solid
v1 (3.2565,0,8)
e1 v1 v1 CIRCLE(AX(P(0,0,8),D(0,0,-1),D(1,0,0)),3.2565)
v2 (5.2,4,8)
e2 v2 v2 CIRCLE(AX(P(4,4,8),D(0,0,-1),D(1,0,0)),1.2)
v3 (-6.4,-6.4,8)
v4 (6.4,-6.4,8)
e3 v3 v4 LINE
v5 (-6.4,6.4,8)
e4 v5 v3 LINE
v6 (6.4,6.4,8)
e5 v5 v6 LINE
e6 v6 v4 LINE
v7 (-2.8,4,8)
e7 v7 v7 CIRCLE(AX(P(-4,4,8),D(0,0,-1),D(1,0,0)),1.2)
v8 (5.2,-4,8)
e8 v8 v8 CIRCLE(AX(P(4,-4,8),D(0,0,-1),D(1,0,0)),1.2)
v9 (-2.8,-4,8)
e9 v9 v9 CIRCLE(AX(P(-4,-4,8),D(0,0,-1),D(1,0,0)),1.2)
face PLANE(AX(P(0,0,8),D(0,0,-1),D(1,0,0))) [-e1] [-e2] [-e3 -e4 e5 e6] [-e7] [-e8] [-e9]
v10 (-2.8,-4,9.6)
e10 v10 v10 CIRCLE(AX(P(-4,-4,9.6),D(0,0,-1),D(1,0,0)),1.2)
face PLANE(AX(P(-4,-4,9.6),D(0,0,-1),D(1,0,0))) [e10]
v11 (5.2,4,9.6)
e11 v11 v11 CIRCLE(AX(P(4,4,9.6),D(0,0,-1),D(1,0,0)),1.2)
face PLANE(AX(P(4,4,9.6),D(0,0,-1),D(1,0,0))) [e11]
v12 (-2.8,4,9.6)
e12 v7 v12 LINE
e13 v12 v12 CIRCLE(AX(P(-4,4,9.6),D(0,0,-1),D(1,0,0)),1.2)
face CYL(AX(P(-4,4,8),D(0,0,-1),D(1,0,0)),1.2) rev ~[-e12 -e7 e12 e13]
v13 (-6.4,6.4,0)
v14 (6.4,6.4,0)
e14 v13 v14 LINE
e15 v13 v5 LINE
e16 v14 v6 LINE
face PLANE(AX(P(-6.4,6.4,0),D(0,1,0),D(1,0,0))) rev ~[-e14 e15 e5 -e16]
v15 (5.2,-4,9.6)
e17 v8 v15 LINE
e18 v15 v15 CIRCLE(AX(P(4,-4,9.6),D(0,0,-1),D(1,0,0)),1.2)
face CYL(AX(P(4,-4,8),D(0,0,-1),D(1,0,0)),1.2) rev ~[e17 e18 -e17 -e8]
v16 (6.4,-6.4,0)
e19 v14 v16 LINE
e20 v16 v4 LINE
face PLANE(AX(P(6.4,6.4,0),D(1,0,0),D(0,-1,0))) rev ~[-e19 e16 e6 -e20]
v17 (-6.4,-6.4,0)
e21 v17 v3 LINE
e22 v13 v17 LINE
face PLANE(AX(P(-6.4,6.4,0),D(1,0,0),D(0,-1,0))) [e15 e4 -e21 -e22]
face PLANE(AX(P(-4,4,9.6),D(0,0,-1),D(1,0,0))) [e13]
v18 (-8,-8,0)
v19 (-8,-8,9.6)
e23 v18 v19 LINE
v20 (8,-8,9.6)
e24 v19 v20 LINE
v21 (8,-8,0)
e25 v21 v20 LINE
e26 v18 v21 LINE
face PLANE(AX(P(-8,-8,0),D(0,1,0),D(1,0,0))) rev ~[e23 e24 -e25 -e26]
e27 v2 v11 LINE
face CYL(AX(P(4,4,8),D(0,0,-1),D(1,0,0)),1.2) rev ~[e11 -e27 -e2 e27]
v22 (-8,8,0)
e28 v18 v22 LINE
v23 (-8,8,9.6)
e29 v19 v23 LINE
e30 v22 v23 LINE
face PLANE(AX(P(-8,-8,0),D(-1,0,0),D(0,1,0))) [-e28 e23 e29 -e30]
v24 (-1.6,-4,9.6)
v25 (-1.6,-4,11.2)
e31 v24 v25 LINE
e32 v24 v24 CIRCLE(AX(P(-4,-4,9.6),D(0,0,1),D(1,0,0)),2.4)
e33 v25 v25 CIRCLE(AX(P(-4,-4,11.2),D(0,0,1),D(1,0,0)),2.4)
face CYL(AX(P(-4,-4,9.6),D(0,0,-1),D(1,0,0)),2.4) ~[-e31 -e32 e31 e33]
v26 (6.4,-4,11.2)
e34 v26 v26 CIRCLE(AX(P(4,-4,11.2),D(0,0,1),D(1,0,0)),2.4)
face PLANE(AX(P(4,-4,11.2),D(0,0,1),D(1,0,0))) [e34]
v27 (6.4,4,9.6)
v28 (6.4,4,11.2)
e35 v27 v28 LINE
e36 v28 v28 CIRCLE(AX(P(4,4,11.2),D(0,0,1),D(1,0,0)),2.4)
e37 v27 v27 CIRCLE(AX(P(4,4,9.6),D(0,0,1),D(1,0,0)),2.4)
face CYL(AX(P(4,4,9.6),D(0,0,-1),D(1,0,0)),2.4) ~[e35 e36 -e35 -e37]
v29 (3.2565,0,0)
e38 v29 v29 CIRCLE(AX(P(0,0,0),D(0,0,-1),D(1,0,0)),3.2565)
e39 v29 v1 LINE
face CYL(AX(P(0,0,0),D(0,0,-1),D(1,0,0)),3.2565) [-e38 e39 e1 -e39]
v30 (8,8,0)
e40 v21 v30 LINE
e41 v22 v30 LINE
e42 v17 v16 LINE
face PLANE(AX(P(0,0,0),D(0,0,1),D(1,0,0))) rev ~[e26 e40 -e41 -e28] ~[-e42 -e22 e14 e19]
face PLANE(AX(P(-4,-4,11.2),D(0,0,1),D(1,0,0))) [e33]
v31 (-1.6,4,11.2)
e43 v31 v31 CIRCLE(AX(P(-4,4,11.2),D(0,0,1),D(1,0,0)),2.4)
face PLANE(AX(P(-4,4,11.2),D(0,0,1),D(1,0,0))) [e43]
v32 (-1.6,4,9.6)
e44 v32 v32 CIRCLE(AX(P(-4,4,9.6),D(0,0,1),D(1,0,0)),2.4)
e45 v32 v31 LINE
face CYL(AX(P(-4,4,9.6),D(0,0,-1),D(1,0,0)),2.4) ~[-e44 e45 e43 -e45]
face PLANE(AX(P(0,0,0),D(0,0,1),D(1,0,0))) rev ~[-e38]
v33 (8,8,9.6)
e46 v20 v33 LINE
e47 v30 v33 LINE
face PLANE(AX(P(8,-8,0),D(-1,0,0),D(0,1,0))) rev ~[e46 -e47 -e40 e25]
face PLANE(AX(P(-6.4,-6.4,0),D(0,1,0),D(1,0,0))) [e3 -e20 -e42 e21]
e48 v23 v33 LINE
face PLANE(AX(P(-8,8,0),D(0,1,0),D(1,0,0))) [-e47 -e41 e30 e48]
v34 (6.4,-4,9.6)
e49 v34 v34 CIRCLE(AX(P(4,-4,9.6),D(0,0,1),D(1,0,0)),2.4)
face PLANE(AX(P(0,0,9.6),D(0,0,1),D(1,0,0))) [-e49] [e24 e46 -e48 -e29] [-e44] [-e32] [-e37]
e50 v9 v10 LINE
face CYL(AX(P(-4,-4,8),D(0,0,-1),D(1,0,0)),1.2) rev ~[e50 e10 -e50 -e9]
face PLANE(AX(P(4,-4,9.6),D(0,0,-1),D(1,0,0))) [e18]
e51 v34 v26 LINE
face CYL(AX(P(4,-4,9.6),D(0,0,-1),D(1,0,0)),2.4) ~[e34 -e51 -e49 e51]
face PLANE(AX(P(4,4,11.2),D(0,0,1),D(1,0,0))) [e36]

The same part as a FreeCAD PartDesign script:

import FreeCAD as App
import Part
import Sketcher

V = App.Vector
Q = App.Units.Quantity

doc = App.newDocument("Part")
body = doc.addObject("PartDesign::Body", "Body")

# Sketch on XY plane
sketch1 = doc.addObject("Sketcher::SketchObject", "Sketch")
body.addObject(sketch1)
sketch1.AttachmentSupport = (doc.XY_Plane, [""])
sketch1.MapMode = "FlatFace"
sketch1.addGeometry([
    Part.LineSegment(V(-8, 8, 0), V(-8, -8, 0)),
    Part.LineSegment(V(-8, -8, 0), V(8, -8, 0)),
    Part.LineSegment(V(8, -8, 0), V(8, 8, 0)),
    Part.LineSegment(V(8, 8, 0), V(-8, 8, 0)),
], False)
sketch1.addConstraint([
    Sketcher.Constraint("Coincident", 0, 2, 1, 1),
    Sketcher.Constraint("Coincident", 1, 2, 2, 1),
    Sketcher.Constraint("Coincident", 2, 2, 3, 1),
    Sketcher.Constraint("Coincident", 3, 2, 0, 1),
    Sketcher.Constraint("Vertical", 0),
    Sketcher.Constraint("Horizontal", 1),
    Sketcher.Constraint("Vertical", 2),
    Sketcher.Constraint("Horizontal", 3),
    Sketcher.Constraint("Symmetric", 0, 2, 2, 2, -1, 1),
    Sketcher.Constraint("Equal", 3, 0),
    Sketcher.Constraint("DistanceX", 1, 1, 1, 2, Q("16 mm")),
])
pad1 = doc.addObject("PartDesign::Pad", "Pad")
body.addObject(pad1)
pad1.Profile = sketch1
pad1.Length = 9.6

# Sketch on XY plane
sketch2 = doc.addObject("Sketcher::SketchObject", "Sketch001")
body.addObject(sketch2)
sketch2.AttachmentSupport = (doc.XY_Plane, [""])
sketch2.MapMode = "FlatFace"
sketch2.addGeometry([
    Part.LineSegment(V(-6.4, -6.4, 0), V(-6.4, 6.4, 0)),  # 0
    Part.LineSegment(V(-6.4, 6.4, 0), V(6.4, 6.4, 0)),  # 1
    Part.LineSegment(V(6.4, 6.4, 0), V(6.4, -6.4, 0)),  # 2
    Part.LineSegment(V(6.4, -6.4, 0), V(-6.4, -6.4, 0)),  # 3
    Part.Circle(V(0, 0, 0), V(0, 0, 1), 3.3),  # 4
], False)
sketch2.addConstraint([
    Sketcher.Constraint("Coincident", 0, 2, 1, 1),
    Sketcher.Constraint("Coincident", 1, 2, 2, 1),
    Sketcher.Constraint("Coincident", 2, 2, 3, 1),
    Sketcher.Constraint("Coincident", 3, 2, 0, 1),
    Sketcher.Constraint("Vertical", 0),
    Sketcher.Constraint("Horizontal", 1),
    Sketcher.Constraint("Vertical", 2),
    Sketcher.Constraint("Horizontal", 3),
    Sketcher.Constraint("Coincident", 4, 3, -1, 1),
    Sketcher.Constraint("Symmetric", 0, 2, 2, 2, -1, 1),
    Sketcher.Constraint("Equal", 3, 0),
    Sketcher.Constraint("Diameter", 4, Q("6.513 mm")),
    Sketcher.Constraint("DistanceX", 1, 1, 1, 2, Q("12.8 mm")),
])
pocket1 = doc.addObject("PartDesign::Pocket", "Pocket")
body.addObject(pocket1)
pocket1.Profile = sketch2
pocket1.Length = 8
pocket1.Reversed = True

# Sketch on XY plane
sketch3 = doc.addObject("Sketcher::SketchObject", "Sketch002")
body.addObject(sketch3)
sketch3.AttachmentSupport = (doc.XY_Plane, [""])
sketch3.MapMode = "FlatFace"
sketch3.AttachmentOffset = App.Placement(V(0, 0, 9.6), App.Rotation())
sketch3.addGeometry([
    Part.Circle(V(-4, 4, 0), V(0, 0, 1), 2.4),
    Part.Circle(V(4, 4, 0), V(0, 0, 1), 2.4),
    Part.Circle(V(-4, -4, 0), V(0, 0, 1), 2.4),
    Part.Circle(V(4, -4, 0), V(0, 0, 1), 2.4),
], False)
sketch3.addConstraint([
    Sketcher.Constraint("Equal", 0, 1),
    Sketcher.Constraint("Equal", 1, 2),
    Sketcher.Constraint("Equal", 2, 3),
    Sketcher.Constraint("Symmetric", 1, 3, 2, 3, -1, 1),
    Sketcher.Constraint("Symmetric", 0, 3, 3, 3, -1, 1),
    Sketcher.Constraint("Symmetric", 0, 3, 1, 3, -2),
    Sketcher.Constraint("Diameter", 0, Q("4.8 mm")),
    Sketcher.Constraint("DistanceX", 0, 3, -1, 1, Q("4 mm")),
    Sketcher.Constraint("DistanceY", -1, 1, 0, 3, Q("4 mm")),
])
pad2 = doc.addObject("PartDesign::Pad", "Pad001")
body.addObject(pad2)
pad2.Profile = sketch3
pad2.Length = 1.6

# Sketch on XY plane
sketch4 = doc.addObject("Sketcher::SketchObject", "Sketch003")
body.addObject(sketch4)
sketch4.AttachmentSupport = (doc.XY_Plane, [""])
sketch4.MapMode = "FlatFace"
sketch4.AttachmentOffset = App.Placement(V(0, 0, 8), App.Rotation())
sketch4.addGeometry([
    Part.Circle(V(-4, 4, 0), V(0, 0, 1), 1.2),
    Part.Circle(V(4, 4, 0), V(0, 0, 1), 1.2),
    Part.Circle(V(-4, -4, 0), V(0, 0, 1), 1.2),
    Part.Circle(V(4, -4, 0), V(0, 0, 1), 1.2),
], False)
sketch4.addConstraint([
    Sketcher.Constraint("Equal", 0, 1),
    Sketcher.Constraint("Equal", 1, 2),
    Sketcher.Constraint("Equal", 2, 3),
    Sketcher.Constraint("Symmetric", 1, 3, 2, 3, -1, 1),
    Sketcher.Constraint("Symmetric", 0, 3, 3, 3, -1, 1),
    Sketcher.Constraint("Symmetric", 0, 3, 1, 3, -2),
    Sketcher.Constraint("Diameter", 0, Q("2.4 mm")),
    Sketcher.Constraint("DistanceX", 0, 3, -1, 1, Q("4 mm")),
    Sketcher.Constraint("DistanceY", -1, 1, 0, 3, Q("4 mm")),
])
pocket2 = doc.addObject("PartDesign::Pocket", "Pocket001")
body.addObject(pocket2)
pocket2.Profile = sketch4
pocket2.Length = 1.6
pocket2.Reversed = True

doc.recompute()
